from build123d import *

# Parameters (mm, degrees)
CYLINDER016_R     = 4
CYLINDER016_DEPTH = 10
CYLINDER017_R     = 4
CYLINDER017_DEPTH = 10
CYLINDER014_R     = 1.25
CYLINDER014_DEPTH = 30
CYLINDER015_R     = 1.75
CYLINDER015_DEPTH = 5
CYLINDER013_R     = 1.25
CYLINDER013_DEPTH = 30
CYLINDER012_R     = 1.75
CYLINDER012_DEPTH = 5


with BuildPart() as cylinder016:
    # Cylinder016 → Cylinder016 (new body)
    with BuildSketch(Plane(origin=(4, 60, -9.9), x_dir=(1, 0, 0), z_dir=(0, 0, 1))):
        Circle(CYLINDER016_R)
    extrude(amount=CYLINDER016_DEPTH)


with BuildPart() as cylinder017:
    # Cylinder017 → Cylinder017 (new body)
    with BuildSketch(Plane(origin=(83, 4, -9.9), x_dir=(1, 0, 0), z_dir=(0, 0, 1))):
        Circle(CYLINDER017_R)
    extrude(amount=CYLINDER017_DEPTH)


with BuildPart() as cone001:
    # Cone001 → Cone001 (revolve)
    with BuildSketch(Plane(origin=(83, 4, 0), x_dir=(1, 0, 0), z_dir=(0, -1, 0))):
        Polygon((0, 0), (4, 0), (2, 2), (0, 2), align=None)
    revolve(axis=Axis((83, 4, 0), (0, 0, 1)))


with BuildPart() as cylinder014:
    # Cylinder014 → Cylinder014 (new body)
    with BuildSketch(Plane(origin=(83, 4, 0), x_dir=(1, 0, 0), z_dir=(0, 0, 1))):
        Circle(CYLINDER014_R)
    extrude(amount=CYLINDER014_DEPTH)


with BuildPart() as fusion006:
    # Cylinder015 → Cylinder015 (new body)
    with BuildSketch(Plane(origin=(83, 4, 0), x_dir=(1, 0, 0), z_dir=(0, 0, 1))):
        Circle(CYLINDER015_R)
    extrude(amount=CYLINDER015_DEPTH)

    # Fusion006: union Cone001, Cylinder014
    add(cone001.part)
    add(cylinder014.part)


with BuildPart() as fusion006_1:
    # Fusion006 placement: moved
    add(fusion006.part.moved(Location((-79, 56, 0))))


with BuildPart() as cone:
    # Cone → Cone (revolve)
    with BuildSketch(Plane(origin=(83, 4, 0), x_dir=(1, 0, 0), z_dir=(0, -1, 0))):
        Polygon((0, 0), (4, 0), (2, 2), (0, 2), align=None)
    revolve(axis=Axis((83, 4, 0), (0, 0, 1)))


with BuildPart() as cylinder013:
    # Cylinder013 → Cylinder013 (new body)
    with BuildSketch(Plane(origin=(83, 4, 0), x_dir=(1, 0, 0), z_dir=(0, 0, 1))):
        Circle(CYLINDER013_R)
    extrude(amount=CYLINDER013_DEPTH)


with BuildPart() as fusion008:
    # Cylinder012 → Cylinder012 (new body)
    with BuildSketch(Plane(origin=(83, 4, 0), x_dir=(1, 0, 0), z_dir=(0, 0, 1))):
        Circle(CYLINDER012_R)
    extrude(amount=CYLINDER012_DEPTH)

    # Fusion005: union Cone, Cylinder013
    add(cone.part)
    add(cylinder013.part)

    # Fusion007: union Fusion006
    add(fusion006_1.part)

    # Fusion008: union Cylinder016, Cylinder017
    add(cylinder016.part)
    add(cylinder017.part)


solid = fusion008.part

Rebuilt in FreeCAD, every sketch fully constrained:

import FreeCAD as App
import Part
import Sketcher

doc = App.newDocument("Part")
params = doc.addObject("Spreadsheet::Sheet", "Params")
for row, (alias, value) in enumerate([
    ("sketch1_diameter", "8 mm"),
    ("pad1_length", "10 mm"),
    ("sketch2_diameter", "8 mm"),
    ("pad2_length", "10 mm"),
    ("sketch3_width", "4 mm"),
    ("sketch3_width2", "2 mm"),
    ("revolution_angle", "360 deg"),
    ("sketch4_diameter", "2.5 mm"),
    ("pad3_length", "30 mm"),
    ("sketch5_diameter", "3.5 mm"),
    ("pad4_length", "5 mm"),
    ("sketch6_width", "4 mm"),
    ("sketch6_width2", "2 mm"),
    ("revolution2_angle", "360 deg"),
    ("sketch7_diameter", "2.5 mm"),
    ("pad5_length", "30 mm"),
    ("sketch8_diameter", "3.5 mm"),
    ("pad6_length", "5 mm"),
], start=1):
    params.set(f"A{row}", alias)
    params.set(f"B{row}", "=" + value)
    params.setAlias(f"B{row}", alias)

body = doc.addObject("PartDesign::Body", "Body")

# Sketch on XY plane
sketch1 = body.newObject("Sketcher::SketchObject", "Sketch")
sketch1.AttachmentSupport = (doc.getObject("XY_Plane"), [""])
sketch1.MapMode = "FlatFace"
sketch1.AttachmentOffset = App.Placement(App.Vector(0, 0, -9.9), App.Rotation())
sketch1.addGeometry(Part.Circle(App.Vector(4, 60, 0), App.Vector(0, 0, 1), 4), False)
sketch1.addConstraint(Sketcher.Constraint("Diameter", 0, 8.0))
sketch1.addConstraint(Sketcher.Constraint("DistanceX", -1, 1, 0, 3, 4.0))
sketch1.addConstraint(Sketcher.Constraint("DistanceY", -1, 1, 0, 3, 60.0))
sketch1.setExpression("Constraints[0]", "Params.sketch1_diameter")
pad1 = body.newObject("PartDesign::Pad", "Pad")
pad1.Profile = sketch1
pad1.setExpression("Length", "Params.pad1_length")
body2 = doc.addObject("PartDesign::Body", "Body001")

# Sketch on XY plane
sketch2 = body2.newObject("Sketcher::SketchObject", "Sketch001")
sketch2.AttachmentSupport = (doc.getObject("XY_Plane001"), [""])
sketch2.MapMode = "FlatFace"
sketch2.AttachmentOffset = App.Placement(App.Vector(0, 0, -9.9), App.Rotation())
sketch2.addGeometry(Part.Circle(App.Vector(83, 4, 0), App.Vector(0, 0, 1), 4), False)
sketch2.addConstraint(Sketcher.Constraint("Diameter", 0, 8.0))
sketch2.addConstraint(Sketcher.Constraint("DistanceX", -1, 1, 0, 3, 83.0))
sketch2.addConstraint(Sketcher.Constraint("DistanceY", -1, 1, 0, 3, 4.0))
sketch2.setExpression("Constraints[0]", "Params.sketch2_diameter")
pad2 = body2.newObject("PartDesign::Pad", "Pad001")
pad2.Profile = sketch2
pad2.setExpression("Length", "Params.pad2_length")
body3 = doc.addObject("PartDesign::Body", "Body002")

# Sketch on XZ plane
sketch3 = body3.newObject("Sketcher::SketchObject", "Sketch002")
sketch3.AttachmentSupport = (doc.getObject("XZ_Plane002"), [""])
sketch3.MapMode = "FlatFace"
sketch3.AttachmentOffset = App.Placement(App.Vector(0, 0, -4), App.Rotation())
sketch3.addGeometry(Part.LineSegment(App.Vector(83, 0, 0), App.Vector(87, 0, 0)), False)
sketch3.addGeometry(Part.LineSegment(App.Vector(87, 0, 0), App.Vector(85, 2, 0)), False)
sketch3.addGeometry(Part.LineSegment(App.Vector(85, 2, 0), App.Vector(83, 2, 0)), False)
sketch3.addGeometry(Part.LineSegment(App.Vector(83, 2, 0), App.Vector(83, 0, 0)), False)
sketch3.addGeometry(Part.LineSegment(App.Vector(83, 0, 0), App.Vector(83, 2, 0)), True)  # axis
sketch3.addConstraint(Sketcher.Constraint("Coincident", 0, 2, 1, 1))
sketch3.addConstraint(Sketcher.Constraint("Coincident", 1, 2, 2, 1))
sketch3.addConstraint(Sketcher.Constraint("Coincident", 2, 2, 3, 1))
sketch3.addConstraint(Sketcher.Constraint("Coincident", 3, 2, 0, 1))
sketch3.addConstraint(Sketcher.Constraint("Horizontal", 0))
sketch3.addConstraint(Sketcher.Constraint("Horizontal", 2))
sketch3.addConstraint(Sketcher.Constraint("Vertical", 3))
sketch3.addConstraint(Sketcher.Constraint("Vertical", 4))
sketch3.addConstraint(Sketcher.Constraint("Coincident", 4, 1, 3, 2))
sketch3.addConstraint(Sketcher.Constraint("PointOnObject", 0, 2, -1))
sketch3.addConstraint(Sketcher.Constraint("Horizontal", 1, 2, 4, 2))
sketch3.addConstraint(Sketcher.Constraint("Equal", 2, 3))
sketch3.addConstraint(Sketcher.Constraint("DistanceX", 0, 1, 0, 2, 4.0))
sketch3.addConstraint(Sketcher.Constraint("DistanceX", 2, 2, 2, 1, 2.0))
sketch3.addConstraint(Sketcher.Constraint("DistanceX", -1, 1, 0, 2, 87.0))
sketch3.setExpression("Constraints[12]", "Params.sketch3_width")
sketch3.setExpression("Constraints[13]", "Params.sketch3_width2")
revolution = body3.newObject("PartDesign::Revolution", "Revolution")
revolution.Profile = sketch3
revolution.ReferenceAxis = (sketch3, ["Axis0"])
revolution.setExpression("Angle", "Params.revolution_angle")
body4 = doc.addObject("PartDesign::Body", "Body003")

# Sketch on XY plane
sketch4 = body4.newObject("Sketcher::SketchObject", "Sketch003")
sketch4.AttachmentSupport = (doc.getObject("XY_Plane003"), [""])
sketch4.MapMode = "FlatFace"
sketch4.addGeometry(Part.Circle(App.Vector(83, 4, 0), App.Vector(0, 0, 1), 1.2), False)
sketch4.addConstraint(Sketcher.Constraint("Diameter", 0, 2.5))
sketch4.addConstraint(Sketcher.Constraint("DistanceX", -1, 1, 0, 3, 83.0))
sketch4.addConstraint(Sketcher.Constraint("DistanceY", -1, 1, 0, 3, 4.0))
sketch4.setExpression("Constraints[0]", "Params.sketch4_diameter")
pad3 = body4.newObject("PartDesign::Pad", "Pad002")
pad3.Profile = sketch4
pad3.setExpression("Length", "Params.pad3_length")
body5 = doc.addObject("PartDesign::Body", "Body004")

# Sketch on XY plane
sketch5 = body5.newObject("Sketcher::SketchObject", "Sketch004")
sketch5.AttachmentSupport = (doc.getObject("XY_Plane004"), [""])
sketch5.MapMode = "FlatFace"
sketch5.addGeometry(Part.Circle(App.Vector(83, 4, 0), App.Vector(0, 0, 1), 1.8), False)
sketch5.addConstraint(Sketcher.Constraint("Diameter", 0, 3.5))
sketch5.addConstraint(Sketcher.Constraint("DistanceX", -1, 1, 0, 3, 83.0))
sketch5.addConstraint(Sketcher.Constraint("DistanceY", -1, 1, 0, 3, 4.0))
sketch5.setExpression("Constraints[0]", "Params.sketch5_diameter")
pad4 = body5.newObject("PartDesign::Pad", "Pad003")
pad4.Profile = sketch5
pad4.setExpression("Length", "Params.pad4_length")
doc.recompute()

boolean = body5.newObject("PartDesign::Boolean", "Boolean")
boolean.Type = "Fuse"
boolean.addObjects([body3])
doc.recompute()

boolean2 = body5.newObject("PartDesign::Boolean", "Boolean001")
boolean2.Type = "Fuse"
boolean2.addObjects([body4])
body6 = doc.addObject("PartDesign::Body", "Body005")
doc.recompute()

body5.Placement = App.Placement(App.Vector(-79, 56, 0), App.Rotation(App.Vector(0, 0, 1), 0))
boolean3 = body6.newObject("PartDesign::Boolean", "Boolean002")
boolean3.Type = "Fuse"
boolean3.addObjects([body5])
body7 = doc.addObject("PartDesign::Body", "Body006")

# Sketch on XZ plane
sketch6 = body7.newObject("Sketcher::SketchObject", "Sketch005")
sketch6.AttachmentSupport = (doc.getObject("XZ_Plane006"), [""])
sketch6.MapMode = "FlatFace"
sketch6.AttachmentOffset = App.Placement(App.Vector(0, 0, -4), App.Rotation())
sketch6.addGeometry(Part.LineSegment(App.Vector(83, 0, 0), App.Vector(87, 0, 0)), False)
sketch6.addGeometry(Part.LineSegment(App.Vector(87, 0, 0), App.Vector(85, 2, 0)), False)
sketch6.addGeometry(Part.LineSegment(App.Vector(85, 2, 0), App.Vector(83, 2, 0)), False)
sketch6.addGeometry(Part.LineSegment(App.Vector(83, 2, 0), App.Vector(83, 0, 0)), False)
sketch6.addGeometry(Part.LineSegment(App.Vector(83, 0, 0), App.Vector(83, 2, 0)), True)  # axis
sketch6.addConstraint(Sketcher.Constraint("Coincident", 0, 2, 1, 1))
sketch6.addConstraint(Sketcher.Constraint("Coincident", 1, 2, 2, 1))
sketch6.addConstraint(Sketcher.Constraint("Coincident", 2, 2, 3, 1))
sketch6.addConstraint(Sketcher.Constraint("Coincident", 3, 2, 0, 1))
sketch6.addConstraint(Sketcher.Constraint("Horizontal", 0))
sketch6.addConstraint(Sketcher.Constraint("Horizontal", 2))
sketch6.addConstraint(Sketcher.Constraint("Vertical", 3))
sketch6.addConstraint(Sketcher.Constraint("Vertical", 4))
sketch6.addConstraint(Sketcher.Constraint("Coincident", 4, 1, 3, 2))
sketch6.addConstraint(Sketcher.Constraint("PointOnObject", 0, 2, -1))
sketch6.addConstraint(Sketcher.Constraint("Horizontal", 1, 2, 4, 2))
sketch6.addConstraint(Sketcher.Constraint("Equal", 2, 3))
sketch6.addConstraint(Sketcher.Constraint("DistanceX", 0, 1, 0, 2, 4.0))
sketch6.addConstraint(Sketcher.Constraint("DistanceX", 2, 2, 2, 1, 2.0))
sketch6.addConstraint(Sketcher.Constraint("DistanceX", -1, 1, 0, 2, 87.0))
sketch6.setExpression("Constraints[12]", "Params.sketch6_width")
sketch6.setExpression("Constraints[13]", "Params.sketch6_width2")
revolution2 = body7.newObject("PartDesign::Revolution", "Revolution001")
revolution2.Profile = sketch6
revolution2.ReferenceAxis = (sketch6, ["Axis0"])
revolution2.setExpression("Angle", "Params.revolution2_angle")
body8 = doc.addObject("PartDesign::Body", "Body007")

# Sketch on XY plane
sketch7 = body8.newObject("Sketcher::SketchObject", "Sketch006")
sketch7.AttachmentSupport = (doc.getObject("XY_Plane007"), [""])
sketch7.MapMode = "FlatFace"
sketch7.addGeometry(Part.Circle(App.Vector(83, 4, 0), App.Vector(0, 0, 1), 1.2), False)
sketch7.addConstraint(Sketcher.Constraint("Diameter", 0, 2.5))
sketch7.addConstraint(Sketcher.Constraint("DistanceX", -1, 1, 0, 3, 83.0))
sketch7.addConstraint(Sketcher.Constraint("DistanceY", -1, 1, 0, 3, 4.0))
sketch7.setExpression("Constraints[0]", "Params.sketch7_diameter")
pad5 = body8.newObject("PartDesign::Pad", "Pad004")
pad5.Profile = sketch7
pad5.setExpression("Length", "Params.pad5_length")
body9 = doc.addObject("PartDesign::Body", "Body008")
body9.AllowCompound = True

# Sketch on XY plane
sketch8 = body9.newObject("Sketcher::SketchObject", "Sketch007")
sketch8.AttachmentSupport = (doc.getObject("XY_Plane008"), [""])
sketch8.MapMode = "FlatFace"
sketch8.addGeometry(Part.Circle(App.Vector(83, 4, 0), App.Vector(0, 0, 1), 1.8), False)
sketch8.addConstraint(Sketcher.Constraint("Diameter", 0, 3.5))
sketch8.addConstraint(Sketcher.Constraint("DistanceX", -1, 1, 0, 3, 83.0))
sketch8.addConstraint(Sketcher.Constraint("DistanceY", -1, 1, 0, 3, 4.0))
sketch8.setExpression("Constraints[0]", "Params.sketch8_diameter")
pad6 = body9.newObject("PartDesign::Pad", "Pad005")
pad6.Profile = sketch8
pad6.setExpression("Length", "Params.pad6_length")
doc.recompute()

boolean4 = body9.newObject("PartDesign::Boolean", "Boolean003")
boolean4.Type = "Fuse"
boolean4.addObjects([body7])
doc.recompute()

boolean5 = body9.newObject("PartDesign::Boolean", "Boolean004")
boolean5.Type = "Fuse"
boolean5.addObjects([body8])
doc.recompute()

boolean6 = body9.newObject("PartDesign::Boolean", "Boolean005")
boolean6.Type = "Fuse"
boolean6.addObjects([body6])
doc.recompute()

boolean7 = body9.newObject("PartDesign::Boolean", "Boolean006")
boolean7.Type = "Fuse"
boolean7.addObjects([body])
doc.recompute()

boolean8 = body9.newObject("PartDesign::Boolean", "Boolean007")
boolean8.Type = "Fuse"
boolean8.addObjects([body2])

doc.recompute()
